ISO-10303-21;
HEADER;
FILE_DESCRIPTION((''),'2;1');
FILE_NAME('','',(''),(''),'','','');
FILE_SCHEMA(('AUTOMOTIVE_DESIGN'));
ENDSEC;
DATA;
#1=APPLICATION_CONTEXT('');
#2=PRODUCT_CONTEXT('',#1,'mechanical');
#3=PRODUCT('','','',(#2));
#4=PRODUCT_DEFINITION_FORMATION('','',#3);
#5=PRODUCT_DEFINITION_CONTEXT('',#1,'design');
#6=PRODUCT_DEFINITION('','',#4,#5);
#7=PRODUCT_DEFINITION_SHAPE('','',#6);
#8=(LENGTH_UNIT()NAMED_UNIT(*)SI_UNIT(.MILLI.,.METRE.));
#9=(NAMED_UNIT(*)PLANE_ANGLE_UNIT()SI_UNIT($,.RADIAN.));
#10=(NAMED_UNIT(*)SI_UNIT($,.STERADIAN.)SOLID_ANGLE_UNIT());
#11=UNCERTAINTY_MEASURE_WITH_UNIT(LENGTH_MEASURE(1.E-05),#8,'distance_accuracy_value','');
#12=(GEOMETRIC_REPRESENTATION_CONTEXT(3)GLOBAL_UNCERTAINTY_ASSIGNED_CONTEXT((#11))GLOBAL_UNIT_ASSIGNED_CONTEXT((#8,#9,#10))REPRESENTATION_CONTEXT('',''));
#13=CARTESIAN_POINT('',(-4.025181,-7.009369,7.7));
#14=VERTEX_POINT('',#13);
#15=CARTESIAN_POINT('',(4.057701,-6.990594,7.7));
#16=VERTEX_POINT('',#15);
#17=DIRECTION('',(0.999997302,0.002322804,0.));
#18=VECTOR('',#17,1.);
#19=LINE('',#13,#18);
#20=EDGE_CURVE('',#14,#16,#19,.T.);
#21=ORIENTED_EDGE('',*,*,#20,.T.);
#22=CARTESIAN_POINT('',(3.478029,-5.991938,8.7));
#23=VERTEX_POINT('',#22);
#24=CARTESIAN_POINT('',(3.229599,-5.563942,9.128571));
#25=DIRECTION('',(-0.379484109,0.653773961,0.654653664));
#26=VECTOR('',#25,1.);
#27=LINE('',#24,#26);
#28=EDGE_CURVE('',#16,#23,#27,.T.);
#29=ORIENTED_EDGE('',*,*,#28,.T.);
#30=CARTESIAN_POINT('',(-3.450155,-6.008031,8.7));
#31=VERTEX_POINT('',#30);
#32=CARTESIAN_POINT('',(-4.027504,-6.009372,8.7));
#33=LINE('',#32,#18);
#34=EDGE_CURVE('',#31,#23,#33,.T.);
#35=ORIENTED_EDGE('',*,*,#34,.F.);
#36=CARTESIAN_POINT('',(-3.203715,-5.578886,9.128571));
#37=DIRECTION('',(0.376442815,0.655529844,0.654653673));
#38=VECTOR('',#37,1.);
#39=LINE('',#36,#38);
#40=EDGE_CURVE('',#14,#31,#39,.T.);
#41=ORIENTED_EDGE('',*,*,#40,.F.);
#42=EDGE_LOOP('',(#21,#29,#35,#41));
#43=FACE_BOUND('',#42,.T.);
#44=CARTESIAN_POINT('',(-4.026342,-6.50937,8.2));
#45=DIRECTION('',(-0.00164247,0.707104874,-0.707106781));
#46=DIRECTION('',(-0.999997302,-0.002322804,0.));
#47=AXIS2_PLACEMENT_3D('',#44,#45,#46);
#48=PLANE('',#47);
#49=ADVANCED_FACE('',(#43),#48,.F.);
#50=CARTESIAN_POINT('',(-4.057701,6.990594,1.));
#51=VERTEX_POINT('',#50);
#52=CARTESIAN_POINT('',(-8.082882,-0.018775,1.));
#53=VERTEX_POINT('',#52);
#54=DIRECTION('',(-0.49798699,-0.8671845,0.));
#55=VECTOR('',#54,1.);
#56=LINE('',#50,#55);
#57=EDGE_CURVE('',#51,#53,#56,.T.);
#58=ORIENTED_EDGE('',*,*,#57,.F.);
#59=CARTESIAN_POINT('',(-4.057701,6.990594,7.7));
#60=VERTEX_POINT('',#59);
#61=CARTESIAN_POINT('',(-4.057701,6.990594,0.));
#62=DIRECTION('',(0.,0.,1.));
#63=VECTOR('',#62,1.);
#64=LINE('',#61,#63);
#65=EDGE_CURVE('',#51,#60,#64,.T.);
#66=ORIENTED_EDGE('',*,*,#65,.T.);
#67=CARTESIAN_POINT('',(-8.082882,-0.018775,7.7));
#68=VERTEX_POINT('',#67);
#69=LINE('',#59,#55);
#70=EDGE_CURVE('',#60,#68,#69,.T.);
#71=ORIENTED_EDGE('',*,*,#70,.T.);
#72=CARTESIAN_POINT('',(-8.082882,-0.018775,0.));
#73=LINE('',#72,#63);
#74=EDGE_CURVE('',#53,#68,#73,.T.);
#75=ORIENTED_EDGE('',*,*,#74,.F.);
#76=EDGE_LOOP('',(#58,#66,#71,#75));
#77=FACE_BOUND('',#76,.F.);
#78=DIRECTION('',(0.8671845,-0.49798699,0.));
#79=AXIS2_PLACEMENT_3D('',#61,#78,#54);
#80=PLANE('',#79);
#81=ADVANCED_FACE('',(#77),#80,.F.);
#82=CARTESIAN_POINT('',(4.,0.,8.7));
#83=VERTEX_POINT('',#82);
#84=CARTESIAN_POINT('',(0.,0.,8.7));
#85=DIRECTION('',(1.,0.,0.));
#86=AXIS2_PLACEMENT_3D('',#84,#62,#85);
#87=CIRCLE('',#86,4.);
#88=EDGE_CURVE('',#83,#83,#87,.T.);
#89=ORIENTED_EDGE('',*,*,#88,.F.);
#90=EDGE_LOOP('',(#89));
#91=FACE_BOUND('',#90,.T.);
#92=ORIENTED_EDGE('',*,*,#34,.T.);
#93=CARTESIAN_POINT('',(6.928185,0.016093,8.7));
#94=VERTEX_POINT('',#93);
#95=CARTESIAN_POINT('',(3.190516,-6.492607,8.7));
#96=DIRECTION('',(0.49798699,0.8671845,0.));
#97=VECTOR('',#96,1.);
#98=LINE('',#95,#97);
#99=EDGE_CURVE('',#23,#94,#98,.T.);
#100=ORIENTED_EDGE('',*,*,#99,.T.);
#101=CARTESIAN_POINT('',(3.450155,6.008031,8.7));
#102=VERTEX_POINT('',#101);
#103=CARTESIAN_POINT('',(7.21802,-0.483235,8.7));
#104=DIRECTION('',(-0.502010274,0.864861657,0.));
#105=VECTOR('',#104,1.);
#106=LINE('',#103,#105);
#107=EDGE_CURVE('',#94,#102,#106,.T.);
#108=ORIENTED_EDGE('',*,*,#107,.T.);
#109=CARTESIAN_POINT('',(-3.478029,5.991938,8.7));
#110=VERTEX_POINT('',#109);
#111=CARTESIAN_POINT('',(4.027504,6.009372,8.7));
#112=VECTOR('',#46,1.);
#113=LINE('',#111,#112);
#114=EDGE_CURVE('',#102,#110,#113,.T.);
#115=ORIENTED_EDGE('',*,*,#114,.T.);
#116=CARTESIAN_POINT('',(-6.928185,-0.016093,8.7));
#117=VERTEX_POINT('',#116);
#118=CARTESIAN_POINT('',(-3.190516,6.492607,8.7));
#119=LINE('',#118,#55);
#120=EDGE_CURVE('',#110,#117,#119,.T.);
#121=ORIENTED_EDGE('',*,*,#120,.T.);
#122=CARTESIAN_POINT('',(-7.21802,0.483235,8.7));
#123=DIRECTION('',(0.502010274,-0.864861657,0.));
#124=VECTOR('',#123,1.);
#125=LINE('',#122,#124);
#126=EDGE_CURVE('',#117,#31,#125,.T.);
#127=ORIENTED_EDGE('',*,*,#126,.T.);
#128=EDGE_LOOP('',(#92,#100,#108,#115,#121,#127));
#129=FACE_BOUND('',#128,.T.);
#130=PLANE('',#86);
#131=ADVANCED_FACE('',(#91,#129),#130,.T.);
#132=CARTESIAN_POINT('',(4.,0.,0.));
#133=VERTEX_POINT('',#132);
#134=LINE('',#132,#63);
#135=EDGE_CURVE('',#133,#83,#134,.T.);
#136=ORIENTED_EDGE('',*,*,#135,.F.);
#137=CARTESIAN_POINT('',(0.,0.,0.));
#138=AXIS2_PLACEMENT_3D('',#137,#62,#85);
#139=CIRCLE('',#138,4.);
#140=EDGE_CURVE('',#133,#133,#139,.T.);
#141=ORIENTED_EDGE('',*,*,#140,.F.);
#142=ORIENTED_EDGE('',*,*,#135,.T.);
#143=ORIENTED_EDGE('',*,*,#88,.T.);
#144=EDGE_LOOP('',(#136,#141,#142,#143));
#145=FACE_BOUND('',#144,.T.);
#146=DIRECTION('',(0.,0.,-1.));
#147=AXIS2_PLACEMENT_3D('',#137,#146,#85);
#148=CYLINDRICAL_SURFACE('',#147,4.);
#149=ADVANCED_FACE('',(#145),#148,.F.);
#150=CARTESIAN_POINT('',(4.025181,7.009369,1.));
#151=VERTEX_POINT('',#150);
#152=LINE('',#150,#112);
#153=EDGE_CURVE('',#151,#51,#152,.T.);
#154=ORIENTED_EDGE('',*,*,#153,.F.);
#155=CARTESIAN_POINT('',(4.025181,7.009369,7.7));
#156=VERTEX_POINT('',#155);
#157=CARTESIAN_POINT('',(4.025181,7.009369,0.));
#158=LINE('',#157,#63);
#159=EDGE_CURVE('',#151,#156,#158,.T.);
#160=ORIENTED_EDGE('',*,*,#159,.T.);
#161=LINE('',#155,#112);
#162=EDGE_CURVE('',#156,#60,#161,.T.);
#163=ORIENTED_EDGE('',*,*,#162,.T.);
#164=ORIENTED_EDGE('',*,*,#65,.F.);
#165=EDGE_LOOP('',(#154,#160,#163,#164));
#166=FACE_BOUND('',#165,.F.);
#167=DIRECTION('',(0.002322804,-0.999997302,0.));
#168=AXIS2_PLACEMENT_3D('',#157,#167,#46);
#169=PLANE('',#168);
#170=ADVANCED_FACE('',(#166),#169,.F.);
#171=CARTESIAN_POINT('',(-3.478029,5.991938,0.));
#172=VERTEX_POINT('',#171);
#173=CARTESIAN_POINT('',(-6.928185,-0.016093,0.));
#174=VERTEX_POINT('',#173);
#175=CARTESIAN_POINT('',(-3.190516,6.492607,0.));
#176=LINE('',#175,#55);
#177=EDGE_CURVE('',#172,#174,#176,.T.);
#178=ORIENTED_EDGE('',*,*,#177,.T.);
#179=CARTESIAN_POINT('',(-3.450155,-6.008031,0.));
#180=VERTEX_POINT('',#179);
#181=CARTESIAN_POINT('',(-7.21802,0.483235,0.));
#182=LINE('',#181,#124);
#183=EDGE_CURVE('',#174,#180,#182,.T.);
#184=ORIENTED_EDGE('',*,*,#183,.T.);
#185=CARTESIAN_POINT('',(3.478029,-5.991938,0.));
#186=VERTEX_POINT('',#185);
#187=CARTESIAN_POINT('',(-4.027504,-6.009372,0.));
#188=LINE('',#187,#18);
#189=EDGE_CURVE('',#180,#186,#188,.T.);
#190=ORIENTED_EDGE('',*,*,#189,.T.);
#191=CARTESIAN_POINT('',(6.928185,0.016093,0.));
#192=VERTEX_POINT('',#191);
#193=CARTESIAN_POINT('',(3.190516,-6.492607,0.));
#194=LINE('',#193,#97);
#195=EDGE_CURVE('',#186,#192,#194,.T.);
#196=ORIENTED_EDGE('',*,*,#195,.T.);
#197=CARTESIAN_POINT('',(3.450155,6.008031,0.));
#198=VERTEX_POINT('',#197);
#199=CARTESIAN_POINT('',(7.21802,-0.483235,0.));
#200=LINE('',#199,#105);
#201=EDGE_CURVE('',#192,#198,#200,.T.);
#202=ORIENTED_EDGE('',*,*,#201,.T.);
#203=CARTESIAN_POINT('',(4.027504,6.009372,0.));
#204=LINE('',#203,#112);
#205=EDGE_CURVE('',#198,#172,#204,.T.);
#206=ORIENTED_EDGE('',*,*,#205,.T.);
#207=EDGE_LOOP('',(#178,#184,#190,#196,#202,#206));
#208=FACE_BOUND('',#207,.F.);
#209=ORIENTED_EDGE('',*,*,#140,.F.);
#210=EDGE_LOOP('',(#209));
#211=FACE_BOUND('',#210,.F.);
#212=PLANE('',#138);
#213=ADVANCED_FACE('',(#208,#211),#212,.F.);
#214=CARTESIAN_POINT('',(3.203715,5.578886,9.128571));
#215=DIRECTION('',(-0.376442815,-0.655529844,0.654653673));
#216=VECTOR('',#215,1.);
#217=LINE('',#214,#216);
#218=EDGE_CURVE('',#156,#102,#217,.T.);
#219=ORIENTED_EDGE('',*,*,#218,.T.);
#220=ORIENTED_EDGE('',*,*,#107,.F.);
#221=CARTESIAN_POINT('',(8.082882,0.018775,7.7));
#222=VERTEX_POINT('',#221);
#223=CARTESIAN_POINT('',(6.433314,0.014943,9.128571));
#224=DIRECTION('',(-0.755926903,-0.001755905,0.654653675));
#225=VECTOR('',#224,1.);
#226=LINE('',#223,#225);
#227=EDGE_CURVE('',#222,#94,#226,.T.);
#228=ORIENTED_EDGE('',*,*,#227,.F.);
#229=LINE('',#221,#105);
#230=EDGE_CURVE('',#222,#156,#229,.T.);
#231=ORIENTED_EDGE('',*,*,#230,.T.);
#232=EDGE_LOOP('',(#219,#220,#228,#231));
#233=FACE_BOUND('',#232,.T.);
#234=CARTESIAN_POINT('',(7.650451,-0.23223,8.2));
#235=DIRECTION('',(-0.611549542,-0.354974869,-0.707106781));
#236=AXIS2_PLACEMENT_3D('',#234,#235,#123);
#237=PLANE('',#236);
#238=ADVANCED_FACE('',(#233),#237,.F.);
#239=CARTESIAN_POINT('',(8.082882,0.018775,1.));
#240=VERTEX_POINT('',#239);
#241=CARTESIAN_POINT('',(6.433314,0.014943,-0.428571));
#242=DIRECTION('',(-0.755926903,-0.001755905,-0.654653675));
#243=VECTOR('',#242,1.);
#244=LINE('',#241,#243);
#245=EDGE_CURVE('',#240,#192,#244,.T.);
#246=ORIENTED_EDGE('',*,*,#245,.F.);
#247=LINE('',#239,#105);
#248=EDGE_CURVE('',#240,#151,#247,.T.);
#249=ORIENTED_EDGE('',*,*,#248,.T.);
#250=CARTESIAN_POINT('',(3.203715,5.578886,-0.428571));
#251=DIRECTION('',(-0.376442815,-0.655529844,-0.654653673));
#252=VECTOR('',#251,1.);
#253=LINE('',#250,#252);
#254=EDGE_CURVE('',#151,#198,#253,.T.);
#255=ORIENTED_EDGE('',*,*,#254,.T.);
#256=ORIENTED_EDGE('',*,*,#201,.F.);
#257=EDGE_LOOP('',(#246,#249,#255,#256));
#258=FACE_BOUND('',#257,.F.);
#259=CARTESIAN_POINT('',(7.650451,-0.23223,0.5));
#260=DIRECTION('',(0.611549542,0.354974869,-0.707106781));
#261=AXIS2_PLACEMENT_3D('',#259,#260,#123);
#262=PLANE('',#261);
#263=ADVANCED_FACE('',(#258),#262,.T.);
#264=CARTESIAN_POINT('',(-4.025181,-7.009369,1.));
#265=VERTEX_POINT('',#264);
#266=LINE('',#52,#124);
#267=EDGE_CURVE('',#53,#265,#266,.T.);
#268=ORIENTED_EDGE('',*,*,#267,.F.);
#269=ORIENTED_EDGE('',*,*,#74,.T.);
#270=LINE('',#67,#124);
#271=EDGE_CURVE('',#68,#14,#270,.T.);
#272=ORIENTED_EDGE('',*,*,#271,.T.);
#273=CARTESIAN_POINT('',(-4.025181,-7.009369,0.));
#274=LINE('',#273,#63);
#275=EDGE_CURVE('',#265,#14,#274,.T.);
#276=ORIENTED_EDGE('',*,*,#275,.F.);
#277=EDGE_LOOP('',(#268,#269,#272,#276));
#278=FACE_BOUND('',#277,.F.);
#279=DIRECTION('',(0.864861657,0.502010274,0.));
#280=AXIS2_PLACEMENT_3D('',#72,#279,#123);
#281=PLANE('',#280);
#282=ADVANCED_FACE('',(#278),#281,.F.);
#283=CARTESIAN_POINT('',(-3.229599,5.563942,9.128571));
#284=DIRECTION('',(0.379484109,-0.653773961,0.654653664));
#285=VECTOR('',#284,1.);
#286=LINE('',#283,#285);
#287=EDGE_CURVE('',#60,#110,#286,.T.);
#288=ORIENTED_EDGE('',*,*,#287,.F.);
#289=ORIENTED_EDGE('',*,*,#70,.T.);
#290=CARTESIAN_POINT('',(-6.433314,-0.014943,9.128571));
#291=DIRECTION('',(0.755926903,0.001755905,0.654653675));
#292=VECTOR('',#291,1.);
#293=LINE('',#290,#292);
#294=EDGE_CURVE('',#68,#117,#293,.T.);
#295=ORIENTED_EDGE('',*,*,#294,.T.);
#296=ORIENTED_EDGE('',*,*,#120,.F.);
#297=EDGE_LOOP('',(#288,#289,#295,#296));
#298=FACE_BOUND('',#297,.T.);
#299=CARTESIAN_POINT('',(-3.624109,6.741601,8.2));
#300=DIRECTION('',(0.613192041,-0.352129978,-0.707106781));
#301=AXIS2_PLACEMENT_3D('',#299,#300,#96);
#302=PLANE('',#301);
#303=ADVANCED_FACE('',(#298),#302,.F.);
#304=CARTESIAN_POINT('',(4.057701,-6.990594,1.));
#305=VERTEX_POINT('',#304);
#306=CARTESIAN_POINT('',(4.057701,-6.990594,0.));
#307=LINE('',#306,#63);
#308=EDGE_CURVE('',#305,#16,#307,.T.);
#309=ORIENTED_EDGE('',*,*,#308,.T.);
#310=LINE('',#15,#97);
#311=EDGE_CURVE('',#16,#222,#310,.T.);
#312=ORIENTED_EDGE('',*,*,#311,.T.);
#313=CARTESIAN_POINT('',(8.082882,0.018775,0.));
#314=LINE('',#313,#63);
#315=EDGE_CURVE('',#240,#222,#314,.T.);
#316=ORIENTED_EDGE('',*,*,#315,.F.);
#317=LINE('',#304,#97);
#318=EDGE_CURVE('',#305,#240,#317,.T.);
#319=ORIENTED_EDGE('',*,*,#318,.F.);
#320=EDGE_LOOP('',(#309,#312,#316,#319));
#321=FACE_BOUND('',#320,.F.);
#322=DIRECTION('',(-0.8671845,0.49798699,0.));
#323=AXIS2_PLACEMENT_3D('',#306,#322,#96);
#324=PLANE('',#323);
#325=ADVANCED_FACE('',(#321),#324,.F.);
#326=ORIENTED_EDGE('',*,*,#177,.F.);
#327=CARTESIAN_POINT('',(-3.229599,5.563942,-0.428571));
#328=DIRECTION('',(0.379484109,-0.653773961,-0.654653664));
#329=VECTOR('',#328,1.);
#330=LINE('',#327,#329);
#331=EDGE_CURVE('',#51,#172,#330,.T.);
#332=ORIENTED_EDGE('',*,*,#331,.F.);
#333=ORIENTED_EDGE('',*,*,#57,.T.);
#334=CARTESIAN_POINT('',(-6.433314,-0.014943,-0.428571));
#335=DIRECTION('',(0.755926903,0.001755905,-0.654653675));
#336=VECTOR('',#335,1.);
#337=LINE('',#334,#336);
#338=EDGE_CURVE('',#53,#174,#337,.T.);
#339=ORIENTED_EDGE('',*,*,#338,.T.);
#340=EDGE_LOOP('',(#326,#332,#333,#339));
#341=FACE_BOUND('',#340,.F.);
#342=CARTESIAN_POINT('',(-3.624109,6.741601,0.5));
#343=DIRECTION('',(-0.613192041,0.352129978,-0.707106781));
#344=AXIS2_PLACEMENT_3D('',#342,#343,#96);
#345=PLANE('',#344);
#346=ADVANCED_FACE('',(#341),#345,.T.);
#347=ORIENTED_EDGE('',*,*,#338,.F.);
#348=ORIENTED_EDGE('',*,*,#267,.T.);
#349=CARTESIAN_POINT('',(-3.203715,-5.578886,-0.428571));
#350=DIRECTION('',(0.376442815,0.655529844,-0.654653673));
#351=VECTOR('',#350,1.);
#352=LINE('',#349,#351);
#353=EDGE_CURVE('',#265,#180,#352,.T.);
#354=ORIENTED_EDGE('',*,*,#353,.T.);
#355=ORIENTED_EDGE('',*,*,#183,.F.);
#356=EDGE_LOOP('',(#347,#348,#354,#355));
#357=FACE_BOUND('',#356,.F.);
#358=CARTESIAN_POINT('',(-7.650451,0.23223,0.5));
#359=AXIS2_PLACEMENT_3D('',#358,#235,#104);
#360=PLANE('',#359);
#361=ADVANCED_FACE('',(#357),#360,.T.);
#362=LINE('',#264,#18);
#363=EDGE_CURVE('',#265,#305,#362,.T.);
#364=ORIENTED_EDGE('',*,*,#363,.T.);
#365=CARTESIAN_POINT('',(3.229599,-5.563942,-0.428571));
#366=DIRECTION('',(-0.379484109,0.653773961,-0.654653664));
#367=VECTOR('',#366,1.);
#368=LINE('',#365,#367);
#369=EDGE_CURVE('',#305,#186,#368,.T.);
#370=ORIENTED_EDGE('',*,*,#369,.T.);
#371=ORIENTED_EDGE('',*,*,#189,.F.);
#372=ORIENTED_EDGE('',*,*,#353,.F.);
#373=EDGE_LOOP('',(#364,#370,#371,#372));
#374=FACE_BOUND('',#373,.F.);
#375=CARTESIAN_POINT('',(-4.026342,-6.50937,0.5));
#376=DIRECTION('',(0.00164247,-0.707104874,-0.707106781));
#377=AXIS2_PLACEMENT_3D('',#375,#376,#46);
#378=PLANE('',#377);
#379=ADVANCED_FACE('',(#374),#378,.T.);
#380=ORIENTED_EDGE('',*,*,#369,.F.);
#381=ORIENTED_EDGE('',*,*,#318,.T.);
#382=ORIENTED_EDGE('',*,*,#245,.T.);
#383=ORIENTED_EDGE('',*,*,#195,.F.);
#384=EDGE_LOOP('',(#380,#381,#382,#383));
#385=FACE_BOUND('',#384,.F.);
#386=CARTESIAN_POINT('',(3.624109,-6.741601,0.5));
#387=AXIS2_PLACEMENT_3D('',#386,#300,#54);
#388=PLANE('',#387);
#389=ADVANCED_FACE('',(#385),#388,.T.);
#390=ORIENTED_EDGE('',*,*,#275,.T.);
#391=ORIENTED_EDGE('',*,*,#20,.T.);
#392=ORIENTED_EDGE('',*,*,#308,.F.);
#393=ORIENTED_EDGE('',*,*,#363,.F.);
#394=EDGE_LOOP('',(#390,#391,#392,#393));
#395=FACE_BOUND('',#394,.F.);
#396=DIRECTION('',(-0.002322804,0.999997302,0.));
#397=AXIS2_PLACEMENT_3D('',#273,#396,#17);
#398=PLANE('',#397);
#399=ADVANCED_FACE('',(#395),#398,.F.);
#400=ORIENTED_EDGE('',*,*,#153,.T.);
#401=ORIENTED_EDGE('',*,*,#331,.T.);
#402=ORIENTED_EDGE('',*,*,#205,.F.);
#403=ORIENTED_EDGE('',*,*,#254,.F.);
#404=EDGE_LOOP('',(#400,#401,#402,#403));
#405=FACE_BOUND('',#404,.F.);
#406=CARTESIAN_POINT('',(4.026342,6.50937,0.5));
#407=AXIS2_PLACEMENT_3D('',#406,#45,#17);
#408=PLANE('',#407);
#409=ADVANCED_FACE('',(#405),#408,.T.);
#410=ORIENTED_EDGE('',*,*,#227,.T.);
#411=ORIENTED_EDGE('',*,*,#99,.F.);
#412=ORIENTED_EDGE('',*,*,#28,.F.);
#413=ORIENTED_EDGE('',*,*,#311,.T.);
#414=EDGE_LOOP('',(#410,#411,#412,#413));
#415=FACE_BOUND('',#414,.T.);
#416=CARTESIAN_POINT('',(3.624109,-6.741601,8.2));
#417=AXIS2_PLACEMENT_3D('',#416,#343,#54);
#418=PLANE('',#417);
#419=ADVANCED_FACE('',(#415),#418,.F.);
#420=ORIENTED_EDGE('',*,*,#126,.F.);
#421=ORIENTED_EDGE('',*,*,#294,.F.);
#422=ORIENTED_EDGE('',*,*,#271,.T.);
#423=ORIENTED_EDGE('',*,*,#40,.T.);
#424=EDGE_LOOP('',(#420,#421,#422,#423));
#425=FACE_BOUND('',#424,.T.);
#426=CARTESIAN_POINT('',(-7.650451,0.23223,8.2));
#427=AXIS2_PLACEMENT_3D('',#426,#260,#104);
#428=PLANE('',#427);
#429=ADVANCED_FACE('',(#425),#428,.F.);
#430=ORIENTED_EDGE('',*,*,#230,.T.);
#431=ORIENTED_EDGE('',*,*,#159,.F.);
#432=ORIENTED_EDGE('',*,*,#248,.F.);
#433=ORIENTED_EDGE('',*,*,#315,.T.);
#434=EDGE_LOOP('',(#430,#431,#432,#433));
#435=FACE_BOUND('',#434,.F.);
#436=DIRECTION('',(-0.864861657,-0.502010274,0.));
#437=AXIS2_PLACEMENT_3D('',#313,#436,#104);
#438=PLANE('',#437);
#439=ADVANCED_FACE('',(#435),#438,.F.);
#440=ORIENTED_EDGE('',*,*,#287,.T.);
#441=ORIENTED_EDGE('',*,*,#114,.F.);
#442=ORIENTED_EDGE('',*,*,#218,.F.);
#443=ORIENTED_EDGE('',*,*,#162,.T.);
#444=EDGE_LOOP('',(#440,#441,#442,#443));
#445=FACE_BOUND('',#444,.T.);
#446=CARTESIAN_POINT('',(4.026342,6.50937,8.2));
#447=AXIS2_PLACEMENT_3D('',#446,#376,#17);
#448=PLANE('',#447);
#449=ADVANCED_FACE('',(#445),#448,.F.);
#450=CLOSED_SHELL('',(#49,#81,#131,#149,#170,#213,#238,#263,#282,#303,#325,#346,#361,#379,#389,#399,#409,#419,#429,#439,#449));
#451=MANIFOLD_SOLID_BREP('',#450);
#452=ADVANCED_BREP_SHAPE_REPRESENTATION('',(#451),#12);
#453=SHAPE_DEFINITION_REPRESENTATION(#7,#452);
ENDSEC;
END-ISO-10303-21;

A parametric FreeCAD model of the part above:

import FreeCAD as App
import Part
import Sketcher

V = App.Vector


def edges_at(feature, points):
    """Names of the edges that pass closest to the given points."""
    edges = feature.Shape.Edges
    near = lambda p: min(range(len(edges)), key=lambda i: edges[i].distToShape(Part.Vertex(*p))[0])
    return sorted({f"Edge{near(p) + 1}" for p in points})

doc = App.newDocument("Part")
params = doc.addObject("Spreadsheet::Sheet", "Params")
for row, (alias, value) in enumerate([
    ("sketch1_diameter", "8 mm"),
    ("pad1_length", "8.7 mm"),
    ("chamfer_size", "1 mm"),
], start=1):
    params.set(f"A{row}", alias)
    params.set(f"B{row}", "=" + value)
    params.setAlias(f"B{row}", alias)

body = doc.addObject("PartDesign::Body", "Body")

sketch1 = doc.addObject("Sketcher::SketchObject", "Sketch")
body.addObject(sketch1)
sketch1.AttachmentSupport = (doc.XY_Plane, [""])
sketch1.MapMode = "FlatFace"
sketch1.addGeometry([
    Part.LineSegment(V(4.1, -7, 0), V(8.1, 0, 0)),
    Part.LineSegment(V(8.1, 0, 0), V(4, 7, 0)),
    Part.LineSegment(V(4, 7, 0), V(-4.1, 7, 0)),
    Part.LineSegment(V(-4.1, 7, 0), V(-8.1, 0, 0)),
    Part.LineSegment(V(-8.1, 0, 0), V(-4, -7, 0)),
    Part.LineSegment(V(-4, -7, 0), V(4.1, -7, 0)),
    Part.Circle(V(0, 0, 0), V(0, 0, 1), 4),
], False)
sketch1.addConstraint([
    Sketcher.Constraint("Coincident", 0, 2, 1, 1),
    Sketcher.Constraint("Coincident", 1, 2, 2, 1),
    Sketcher.Constraint("Coincident", 2, 2, 3, 1),
    Sketcher.Constraint("Coincident", 3, 2, 4, 1),
    Sketcher.Constraint("Coincident", 4, 2, 5, 1),
    Sketcher.Constraint("Coincident", 5, 2, 0, 1),
    Sketcher.Constraint("Coincident", 6, 3, -1, 1),
    Sketcher.Constraint("Symmetric", 0, 2, 3, 2, -1, 1),
    Sketcher.Constraint("Symmetric", 1, 2, 4, 2, -1, 1),
    Sketcher.Constraint("Symmetric", 2, 2, 5, 2, -1, 1),
    Sketcher.Constraint("Equal", 0, 1),
    Sketcher.Constraint("Equal", 1, 2),
    Sketcher.Constraint("Diameter", 6, 8.0),
    Sketcher.Constraint("DistanceX", 2, 2, -1, 1, 4.057701),
    Sketcher.Constraint("DistanceX", 1, 2, 0, 2, 4.057701),
    Sketcher.Constraint("DistanceX", -1, 1, 1, 2, 4.025181),
    Sketcher.Constraint("DistanceY", -1, 1, 1, 2, 7.009369),
])
sketch1.setExpression("Constraints[12]", "Params.sketch1_diameter")
pad1 = doc.addObject("PartDesign::Pad", "Pad")
body.addObject(pad1)
pad1.Profile = sketch1
pad1.setExpression("Length", "Params.pad1_length")
doc.recompute()

chamfer = doc.addObject("PartDesign::Chamfer", "Chamfer")
body.addObject(chamfer)
chamfer.Base = (pad1, edges_at(pad1, [
    (-6.07, 3.486, 8.7),
    (-6.054, -3.514, 8.7),
    (0.016, -7, 8.7),
    (6.07, -3.486, 8.7),
    (6.054, 3.514, 8.7),
    (-0.016, 7, 8.7),
    (-6.07, 3.486, 0),
    (-0.016, 7, 0),
    (-6.054, -3.514, 0),
    (0.016, -7, 0),
    (6.07, -3.486, 0),
    (6.054, 3.514, 0),
]))
chamfer.setExpression("Size", "Params.chamfer_size")

doc.recompute()
